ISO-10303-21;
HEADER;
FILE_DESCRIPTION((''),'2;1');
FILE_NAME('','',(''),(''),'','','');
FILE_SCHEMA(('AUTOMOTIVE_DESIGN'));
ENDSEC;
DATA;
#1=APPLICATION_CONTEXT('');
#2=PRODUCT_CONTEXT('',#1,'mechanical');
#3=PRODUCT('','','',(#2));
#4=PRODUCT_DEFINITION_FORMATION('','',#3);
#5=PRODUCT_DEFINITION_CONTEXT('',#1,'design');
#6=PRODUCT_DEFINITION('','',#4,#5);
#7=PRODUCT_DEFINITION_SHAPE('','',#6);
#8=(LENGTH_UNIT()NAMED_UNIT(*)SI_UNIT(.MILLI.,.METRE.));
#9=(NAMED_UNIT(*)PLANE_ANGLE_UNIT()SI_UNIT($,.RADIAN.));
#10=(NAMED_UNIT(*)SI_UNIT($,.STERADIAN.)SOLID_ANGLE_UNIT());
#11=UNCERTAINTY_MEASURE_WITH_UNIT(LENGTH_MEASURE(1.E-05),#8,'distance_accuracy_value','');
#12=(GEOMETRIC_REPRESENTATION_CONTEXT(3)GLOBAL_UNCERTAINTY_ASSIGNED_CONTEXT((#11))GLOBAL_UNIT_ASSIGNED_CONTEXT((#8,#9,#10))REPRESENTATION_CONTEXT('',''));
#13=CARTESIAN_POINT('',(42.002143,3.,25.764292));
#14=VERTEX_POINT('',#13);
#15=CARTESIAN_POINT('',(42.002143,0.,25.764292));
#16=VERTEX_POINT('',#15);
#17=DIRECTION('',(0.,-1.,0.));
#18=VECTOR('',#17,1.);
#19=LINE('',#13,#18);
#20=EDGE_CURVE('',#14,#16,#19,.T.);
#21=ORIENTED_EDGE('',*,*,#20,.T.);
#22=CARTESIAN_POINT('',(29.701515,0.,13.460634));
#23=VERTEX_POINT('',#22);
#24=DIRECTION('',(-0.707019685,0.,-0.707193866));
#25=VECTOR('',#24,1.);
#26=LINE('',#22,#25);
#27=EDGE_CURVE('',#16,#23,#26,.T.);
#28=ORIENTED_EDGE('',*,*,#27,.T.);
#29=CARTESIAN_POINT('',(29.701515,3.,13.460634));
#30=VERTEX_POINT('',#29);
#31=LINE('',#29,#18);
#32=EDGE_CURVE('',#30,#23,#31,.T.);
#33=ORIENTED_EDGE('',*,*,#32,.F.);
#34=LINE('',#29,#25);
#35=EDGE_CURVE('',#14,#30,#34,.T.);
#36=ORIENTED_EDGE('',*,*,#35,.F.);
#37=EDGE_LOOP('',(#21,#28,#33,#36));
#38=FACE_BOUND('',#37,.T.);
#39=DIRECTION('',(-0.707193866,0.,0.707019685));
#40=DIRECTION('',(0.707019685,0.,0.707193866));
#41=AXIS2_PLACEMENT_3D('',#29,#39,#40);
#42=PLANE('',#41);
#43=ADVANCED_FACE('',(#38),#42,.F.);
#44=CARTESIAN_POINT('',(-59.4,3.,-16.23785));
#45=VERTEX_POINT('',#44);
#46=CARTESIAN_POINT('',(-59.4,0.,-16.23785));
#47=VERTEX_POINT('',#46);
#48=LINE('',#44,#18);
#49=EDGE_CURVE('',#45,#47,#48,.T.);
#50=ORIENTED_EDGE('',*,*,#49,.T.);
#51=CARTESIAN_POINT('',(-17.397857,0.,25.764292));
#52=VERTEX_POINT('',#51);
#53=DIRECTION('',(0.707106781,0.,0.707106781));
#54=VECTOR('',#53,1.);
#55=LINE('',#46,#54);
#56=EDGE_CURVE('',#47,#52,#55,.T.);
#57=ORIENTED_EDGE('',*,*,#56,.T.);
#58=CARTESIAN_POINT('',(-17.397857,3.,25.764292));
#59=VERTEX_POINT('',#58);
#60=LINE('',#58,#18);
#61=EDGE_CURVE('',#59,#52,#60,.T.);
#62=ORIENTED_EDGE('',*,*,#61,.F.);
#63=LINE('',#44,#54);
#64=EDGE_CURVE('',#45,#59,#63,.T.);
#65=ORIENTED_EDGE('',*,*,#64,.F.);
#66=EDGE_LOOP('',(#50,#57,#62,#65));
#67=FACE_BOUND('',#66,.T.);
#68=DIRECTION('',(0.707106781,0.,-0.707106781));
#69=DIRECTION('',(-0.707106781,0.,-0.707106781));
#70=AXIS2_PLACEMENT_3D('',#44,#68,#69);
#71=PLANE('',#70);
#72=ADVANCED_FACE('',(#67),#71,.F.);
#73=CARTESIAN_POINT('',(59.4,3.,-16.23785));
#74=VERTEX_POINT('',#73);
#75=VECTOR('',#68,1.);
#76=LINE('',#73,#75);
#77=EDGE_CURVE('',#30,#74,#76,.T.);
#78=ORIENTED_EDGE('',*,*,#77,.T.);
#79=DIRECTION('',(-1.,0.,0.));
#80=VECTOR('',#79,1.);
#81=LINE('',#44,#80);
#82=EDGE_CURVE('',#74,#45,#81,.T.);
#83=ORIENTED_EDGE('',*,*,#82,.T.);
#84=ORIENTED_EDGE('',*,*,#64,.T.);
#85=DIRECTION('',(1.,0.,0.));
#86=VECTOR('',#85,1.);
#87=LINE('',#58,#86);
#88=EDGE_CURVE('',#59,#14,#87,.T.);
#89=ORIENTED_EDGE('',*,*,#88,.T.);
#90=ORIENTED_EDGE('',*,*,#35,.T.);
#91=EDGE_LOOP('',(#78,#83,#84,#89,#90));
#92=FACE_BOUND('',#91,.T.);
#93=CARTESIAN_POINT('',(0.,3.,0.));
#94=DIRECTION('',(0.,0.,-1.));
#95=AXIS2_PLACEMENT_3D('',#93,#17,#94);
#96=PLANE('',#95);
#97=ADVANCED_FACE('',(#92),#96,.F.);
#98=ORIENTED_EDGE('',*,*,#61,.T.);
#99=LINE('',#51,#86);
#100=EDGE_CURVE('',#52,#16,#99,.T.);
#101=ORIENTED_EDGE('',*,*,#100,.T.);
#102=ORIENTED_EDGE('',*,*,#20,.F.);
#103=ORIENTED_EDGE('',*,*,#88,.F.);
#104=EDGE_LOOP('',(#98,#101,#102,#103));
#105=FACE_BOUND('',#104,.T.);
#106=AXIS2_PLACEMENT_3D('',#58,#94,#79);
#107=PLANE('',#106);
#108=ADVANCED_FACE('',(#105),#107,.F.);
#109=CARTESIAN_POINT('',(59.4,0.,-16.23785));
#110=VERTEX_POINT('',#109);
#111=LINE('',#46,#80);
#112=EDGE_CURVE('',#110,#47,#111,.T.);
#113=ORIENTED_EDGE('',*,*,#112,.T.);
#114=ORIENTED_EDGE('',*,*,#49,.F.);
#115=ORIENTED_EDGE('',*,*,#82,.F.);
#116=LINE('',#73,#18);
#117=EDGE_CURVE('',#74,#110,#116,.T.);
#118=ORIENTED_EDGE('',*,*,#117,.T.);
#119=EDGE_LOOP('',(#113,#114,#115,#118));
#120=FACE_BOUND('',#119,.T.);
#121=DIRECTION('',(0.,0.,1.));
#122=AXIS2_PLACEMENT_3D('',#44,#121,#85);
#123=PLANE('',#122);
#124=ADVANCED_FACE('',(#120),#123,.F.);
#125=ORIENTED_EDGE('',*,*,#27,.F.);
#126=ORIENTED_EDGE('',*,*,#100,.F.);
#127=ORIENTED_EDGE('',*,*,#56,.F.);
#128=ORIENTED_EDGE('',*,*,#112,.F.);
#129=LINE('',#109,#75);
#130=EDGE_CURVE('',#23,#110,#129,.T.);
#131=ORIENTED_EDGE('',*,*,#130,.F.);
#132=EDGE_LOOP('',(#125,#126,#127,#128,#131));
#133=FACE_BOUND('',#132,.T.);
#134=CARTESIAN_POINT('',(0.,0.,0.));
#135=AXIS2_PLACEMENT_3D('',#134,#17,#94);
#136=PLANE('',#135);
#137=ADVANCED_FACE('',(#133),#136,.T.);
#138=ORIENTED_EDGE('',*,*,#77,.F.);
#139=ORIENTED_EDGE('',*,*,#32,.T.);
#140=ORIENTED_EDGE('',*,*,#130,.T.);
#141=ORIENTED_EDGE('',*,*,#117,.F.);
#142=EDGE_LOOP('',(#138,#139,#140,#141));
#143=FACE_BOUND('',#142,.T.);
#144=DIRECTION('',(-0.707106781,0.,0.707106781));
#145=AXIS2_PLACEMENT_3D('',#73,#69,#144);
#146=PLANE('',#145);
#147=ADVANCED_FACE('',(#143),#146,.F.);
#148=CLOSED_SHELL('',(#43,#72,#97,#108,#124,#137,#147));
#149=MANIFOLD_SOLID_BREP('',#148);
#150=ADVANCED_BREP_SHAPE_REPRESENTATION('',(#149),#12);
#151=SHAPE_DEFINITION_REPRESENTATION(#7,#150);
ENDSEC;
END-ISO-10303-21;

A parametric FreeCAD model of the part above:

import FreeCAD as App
import Part
import Sketcher
from FreeCAD import Vector
Q = App.Units.Quantity


def add_polygon(sketch, points):
    """Adds a closed chain of lines whose ends are joined by coincident constraints."""
    first, n = sketch.GeometryCount, len(points)
    for a, b in zip(points, points[1:] + points[:1]):
        sketch.addGeometry(Part.LineSegment(App.Vector(*a, 0), App.Vector(*b, 0)), False)
    for i in range(n):
        sketch.addConstraint(Sketcher.Constraint("Coincident", first + i, 2, first + (i + 1) % n, 1))

doc = App.newDocument("Part")
body = doc.addObject("PartDesign::Body", "Body")

sketch1 = body.newObject("Sketcher::SketchObject", "Sketch")
sketch1.AttachmentSupport = (doc.getObject("XZ_Plane"), [""])
sketch1.MapMode = "FlatFace"
add_polygon(sketch1, [(-59, -16), (-17, 26), (42, 26), (30, 13), (59, -16)])
sketch1.addConstraint([
    Sketcher.Constraint("Horizontal", 1),
    Sketcher.Constraint("Horizontal", 4),
    Sketcher.Constraint("Perpendicular", 0, 3),
    Sketcher.Constraint("Angle", 0, Q("45 deg")),
    Sketcher.Constraint("Distance", 3, 42.0),
    Sketcher.Constraint("DistanceX", 1, 1, 1, 2, 59.4),
    Sketcher.Constraint("DistanceX", 4, 2, 4, 1, 118.8),
    Sketcher.Constraint("Distance", 0, 59.4),
    Sketcher.Constraint("DistanceX", -1, 1, 3, 2, 59.4),
    Sketcher.Constraint("DistanceY", 3, 2, -1, 1, 16.23785),
])
pad1 = body.newObject("PartDesign::Pad", "Pad")
pad1.Profile = sketch1
pad1.Length = 3
pad1.Reversed = True

doc.recompute()
